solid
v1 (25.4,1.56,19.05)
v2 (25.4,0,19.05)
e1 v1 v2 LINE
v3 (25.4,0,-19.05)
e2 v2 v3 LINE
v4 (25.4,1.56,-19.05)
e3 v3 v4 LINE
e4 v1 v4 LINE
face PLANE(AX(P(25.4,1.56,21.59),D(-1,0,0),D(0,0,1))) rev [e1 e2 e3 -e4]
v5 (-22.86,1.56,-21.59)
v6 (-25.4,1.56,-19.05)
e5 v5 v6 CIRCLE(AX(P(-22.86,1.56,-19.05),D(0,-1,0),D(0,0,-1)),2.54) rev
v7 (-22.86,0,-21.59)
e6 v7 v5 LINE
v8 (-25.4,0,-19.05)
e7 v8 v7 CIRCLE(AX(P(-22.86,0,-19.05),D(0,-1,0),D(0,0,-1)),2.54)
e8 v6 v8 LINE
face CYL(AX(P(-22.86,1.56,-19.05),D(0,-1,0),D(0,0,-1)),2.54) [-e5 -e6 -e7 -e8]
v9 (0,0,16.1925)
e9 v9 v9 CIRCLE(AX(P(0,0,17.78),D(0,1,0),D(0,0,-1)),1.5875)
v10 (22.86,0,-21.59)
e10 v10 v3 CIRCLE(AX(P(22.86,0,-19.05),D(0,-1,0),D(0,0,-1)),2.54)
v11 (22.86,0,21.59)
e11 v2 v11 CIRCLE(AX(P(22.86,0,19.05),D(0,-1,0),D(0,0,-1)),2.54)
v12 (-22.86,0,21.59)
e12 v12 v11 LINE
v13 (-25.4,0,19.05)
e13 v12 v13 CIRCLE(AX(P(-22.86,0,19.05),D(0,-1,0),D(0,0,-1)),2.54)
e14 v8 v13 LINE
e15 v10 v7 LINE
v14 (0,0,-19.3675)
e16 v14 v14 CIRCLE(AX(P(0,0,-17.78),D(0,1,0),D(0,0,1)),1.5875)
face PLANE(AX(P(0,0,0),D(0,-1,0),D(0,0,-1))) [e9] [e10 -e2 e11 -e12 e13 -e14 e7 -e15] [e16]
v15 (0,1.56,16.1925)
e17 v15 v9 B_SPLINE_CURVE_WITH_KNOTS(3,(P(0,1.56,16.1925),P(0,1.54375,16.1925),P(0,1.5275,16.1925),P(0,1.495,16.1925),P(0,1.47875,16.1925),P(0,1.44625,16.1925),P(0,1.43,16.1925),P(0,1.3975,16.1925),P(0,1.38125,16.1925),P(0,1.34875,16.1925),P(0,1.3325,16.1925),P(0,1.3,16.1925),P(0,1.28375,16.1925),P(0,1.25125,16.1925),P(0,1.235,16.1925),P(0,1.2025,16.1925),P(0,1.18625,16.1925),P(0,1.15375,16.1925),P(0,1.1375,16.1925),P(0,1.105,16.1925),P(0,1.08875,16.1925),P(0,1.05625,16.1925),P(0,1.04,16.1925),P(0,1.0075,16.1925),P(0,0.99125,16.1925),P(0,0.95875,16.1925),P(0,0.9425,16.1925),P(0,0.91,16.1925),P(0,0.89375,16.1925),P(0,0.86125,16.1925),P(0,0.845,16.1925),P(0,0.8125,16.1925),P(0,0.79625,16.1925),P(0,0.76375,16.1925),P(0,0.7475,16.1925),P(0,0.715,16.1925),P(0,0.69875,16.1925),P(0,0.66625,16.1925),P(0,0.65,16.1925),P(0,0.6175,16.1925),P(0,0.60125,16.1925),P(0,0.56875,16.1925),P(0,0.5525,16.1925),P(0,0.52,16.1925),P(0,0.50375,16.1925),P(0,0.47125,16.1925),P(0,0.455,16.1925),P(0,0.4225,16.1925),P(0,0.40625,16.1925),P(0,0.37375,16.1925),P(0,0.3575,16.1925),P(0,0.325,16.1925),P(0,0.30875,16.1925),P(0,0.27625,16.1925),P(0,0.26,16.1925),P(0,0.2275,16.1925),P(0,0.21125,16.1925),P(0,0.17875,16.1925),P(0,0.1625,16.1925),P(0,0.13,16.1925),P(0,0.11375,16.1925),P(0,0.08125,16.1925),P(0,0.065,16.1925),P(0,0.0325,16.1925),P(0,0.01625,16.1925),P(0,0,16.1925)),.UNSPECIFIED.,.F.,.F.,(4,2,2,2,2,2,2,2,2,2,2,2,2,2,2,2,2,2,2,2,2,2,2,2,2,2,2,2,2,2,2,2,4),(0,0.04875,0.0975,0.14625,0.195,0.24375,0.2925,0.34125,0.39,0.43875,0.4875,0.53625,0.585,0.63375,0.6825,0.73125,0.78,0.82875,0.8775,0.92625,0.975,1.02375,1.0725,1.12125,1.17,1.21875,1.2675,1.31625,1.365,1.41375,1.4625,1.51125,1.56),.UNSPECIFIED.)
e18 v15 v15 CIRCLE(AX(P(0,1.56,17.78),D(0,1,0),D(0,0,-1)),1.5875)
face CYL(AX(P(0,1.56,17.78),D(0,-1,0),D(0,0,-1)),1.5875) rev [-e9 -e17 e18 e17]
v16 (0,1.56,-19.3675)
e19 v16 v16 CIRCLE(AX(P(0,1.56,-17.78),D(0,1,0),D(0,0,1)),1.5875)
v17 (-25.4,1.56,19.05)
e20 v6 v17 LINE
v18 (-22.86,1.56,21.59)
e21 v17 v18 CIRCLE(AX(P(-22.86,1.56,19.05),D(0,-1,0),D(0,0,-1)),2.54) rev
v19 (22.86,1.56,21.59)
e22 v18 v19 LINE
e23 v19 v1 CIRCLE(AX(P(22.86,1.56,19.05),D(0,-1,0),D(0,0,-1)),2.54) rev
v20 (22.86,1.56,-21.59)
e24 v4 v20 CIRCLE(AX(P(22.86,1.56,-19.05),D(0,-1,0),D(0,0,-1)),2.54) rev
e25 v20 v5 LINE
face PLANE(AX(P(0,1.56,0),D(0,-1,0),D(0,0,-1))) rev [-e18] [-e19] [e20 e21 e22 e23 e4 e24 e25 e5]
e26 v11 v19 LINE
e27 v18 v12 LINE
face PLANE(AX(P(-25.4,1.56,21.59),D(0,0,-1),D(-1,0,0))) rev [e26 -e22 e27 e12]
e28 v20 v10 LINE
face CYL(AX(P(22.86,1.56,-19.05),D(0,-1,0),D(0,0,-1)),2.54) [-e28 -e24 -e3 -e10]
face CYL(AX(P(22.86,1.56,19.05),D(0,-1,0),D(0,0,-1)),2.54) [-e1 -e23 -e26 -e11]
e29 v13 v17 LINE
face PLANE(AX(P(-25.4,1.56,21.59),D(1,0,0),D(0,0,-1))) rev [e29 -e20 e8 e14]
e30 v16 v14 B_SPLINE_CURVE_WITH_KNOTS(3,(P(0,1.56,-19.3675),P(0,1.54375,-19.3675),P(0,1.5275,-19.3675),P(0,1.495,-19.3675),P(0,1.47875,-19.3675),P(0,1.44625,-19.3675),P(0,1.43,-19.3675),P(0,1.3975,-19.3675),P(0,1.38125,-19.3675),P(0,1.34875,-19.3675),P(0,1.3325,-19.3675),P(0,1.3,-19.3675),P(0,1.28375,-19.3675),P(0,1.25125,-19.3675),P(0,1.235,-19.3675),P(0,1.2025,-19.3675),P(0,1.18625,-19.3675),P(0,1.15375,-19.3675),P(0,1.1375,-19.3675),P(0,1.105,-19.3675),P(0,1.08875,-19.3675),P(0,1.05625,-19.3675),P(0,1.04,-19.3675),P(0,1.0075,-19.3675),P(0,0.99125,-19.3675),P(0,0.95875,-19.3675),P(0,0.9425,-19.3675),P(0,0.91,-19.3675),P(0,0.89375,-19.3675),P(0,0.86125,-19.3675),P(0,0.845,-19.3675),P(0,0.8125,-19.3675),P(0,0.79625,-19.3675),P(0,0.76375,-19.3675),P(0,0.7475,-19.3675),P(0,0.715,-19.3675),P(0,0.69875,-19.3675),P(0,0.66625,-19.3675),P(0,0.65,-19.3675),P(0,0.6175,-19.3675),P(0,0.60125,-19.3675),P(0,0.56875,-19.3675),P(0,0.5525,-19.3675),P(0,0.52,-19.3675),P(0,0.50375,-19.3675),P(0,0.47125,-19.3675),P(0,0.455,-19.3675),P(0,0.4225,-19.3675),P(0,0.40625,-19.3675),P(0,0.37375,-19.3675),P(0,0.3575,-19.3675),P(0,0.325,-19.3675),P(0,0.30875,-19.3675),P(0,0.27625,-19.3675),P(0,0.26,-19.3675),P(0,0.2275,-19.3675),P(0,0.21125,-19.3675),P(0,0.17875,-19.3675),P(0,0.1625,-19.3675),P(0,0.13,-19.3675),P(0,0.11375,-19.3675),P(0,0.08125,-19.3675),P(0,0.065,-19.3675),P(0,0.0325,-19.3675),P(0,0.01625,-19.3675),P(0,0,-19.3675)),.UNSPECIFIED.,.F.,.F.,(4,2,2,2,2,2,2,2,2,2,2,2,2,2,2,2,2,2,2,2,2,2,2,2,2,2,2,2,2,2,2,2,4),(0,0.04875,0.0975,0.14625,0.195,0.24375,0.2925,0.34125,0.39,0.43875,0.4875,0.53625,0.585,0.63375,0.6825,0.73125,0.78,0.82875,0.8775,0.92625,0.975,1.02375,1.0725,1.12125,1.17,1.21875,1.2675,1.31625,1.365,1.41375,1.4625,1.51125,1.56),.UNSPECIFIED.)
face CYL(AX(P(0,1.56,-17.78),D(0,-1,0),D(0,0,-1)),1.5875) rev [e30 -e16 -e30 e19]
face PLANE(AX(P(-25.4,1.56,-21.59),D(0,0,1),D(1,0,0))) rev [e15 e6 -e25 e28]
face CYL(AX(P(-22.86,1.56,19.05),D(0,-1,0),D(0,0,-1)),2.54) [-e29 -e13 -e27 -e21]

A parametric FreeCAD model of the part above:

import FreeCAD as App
import Part
import Sketcher

V = App.Vector
Q = App.Units.Quantity


def edges_at(feature, points):
    """Names of the edges that pass closest to the given points."""
    edges = feature.Shape.Edges
    near = lambda p: min(range(len(edges)), key=lambda i: edges[i].distToShape(Part.Vertex(*p))[0])
    return sorted({f"Edge{near(p) + 1}" for p in points})

doc = App.newDocument("Part")
body = doc.addObject("PartDesign::Body", "Body")

sketch1 = body.newObject("Sketcher::SketchObject", "Sketch")
sketch1.AttachmentSupport = (doc.getObject("XZ_Plane"), [""])
sketch1.MapMode = "FlatFace"
sketch1.addGeometry([
    Part.LineSegment(V(-25.4, -21.6, 0), V(-25.4, 21.6, 0)),
    Part.LineSegment(V(-25.4, 21.6, 0), V(25.4, 21.6, 0)),
    Part.LineSegment(V(25.4, 21.6, 0), V(25.4, -21.6, 0)),
    Part.LineSegment(V(25.4, -21.6, 0), V(-25.4, -21.6, 0)),
    Part.Circle(V(0, 17.8, 0), V(0, 0, 1), 1.6),
    Part.Circle(V(0, -17.8, 0), V(0, 0, 1), 1.6),
], False)
sketch1.addConstraint([
    Sketcher.Constraint("Coincident", 0, 2, 1, 1),
    Sketcher.Constraint("Coincident", 1, 2, 2, 1),
    Sketcher.Constraint("Coincident", 2, 2, 3, 1),
    Sketcher.Constraint("Coincident", 3, 2, 0, 1),
    Sketcher.Constraint("Vertical", 0),
    Sketcher.Constraint("Horizontal", 1),
    Sketcher.Constraint("Vertical", 2),
    Sketcher.Constraint("Horizontal", 3),
    Sketcher.Constraint("Equal", 4, 5),
    Sketcher.Constraint("Symmetric", 4, 3, 5, 3, -1, 1),
    Sketcher.Constraint("Symmetric", 0, 2, 2, 2, -1, 1),
    Sketcher.Constraint("PointOnObject", 4, 3, -2),
    Sketcher.Constraint("DistanceX", 1, 1, 1, 2, Q("2 in")),
    Sketcher.Constraint("Diameter", 4, Q("0.125 in")),
    Sketcher.Constraint("DistanceY", 0, 1, 0, 2, Q("1.7 in")),
    Sketcher.Constraint("DistanceY", -1, 1, 4, 3, Q("0.7 in")),
])
pad1 = body.newObject("PartDesign::Pad", "Pad")
pad1.Profile = sketch1
pad1.Length = 1.56
pad1.Reversed = True
doc.recompute()

fillet = body.newObject("PartDesign::Fillet", "Fillet")
fillet.Base = (pad1, edges_at(pad1, [
    (25.4, 0.78, 21.59),
    (-25.4, 0.78, 21.59),
    (-25.4, 0.78, -21.59),
    (25.4, 0.78, -21.59),
]))
fillet.Radius = Q("0.1 in")

doc.recompute()
